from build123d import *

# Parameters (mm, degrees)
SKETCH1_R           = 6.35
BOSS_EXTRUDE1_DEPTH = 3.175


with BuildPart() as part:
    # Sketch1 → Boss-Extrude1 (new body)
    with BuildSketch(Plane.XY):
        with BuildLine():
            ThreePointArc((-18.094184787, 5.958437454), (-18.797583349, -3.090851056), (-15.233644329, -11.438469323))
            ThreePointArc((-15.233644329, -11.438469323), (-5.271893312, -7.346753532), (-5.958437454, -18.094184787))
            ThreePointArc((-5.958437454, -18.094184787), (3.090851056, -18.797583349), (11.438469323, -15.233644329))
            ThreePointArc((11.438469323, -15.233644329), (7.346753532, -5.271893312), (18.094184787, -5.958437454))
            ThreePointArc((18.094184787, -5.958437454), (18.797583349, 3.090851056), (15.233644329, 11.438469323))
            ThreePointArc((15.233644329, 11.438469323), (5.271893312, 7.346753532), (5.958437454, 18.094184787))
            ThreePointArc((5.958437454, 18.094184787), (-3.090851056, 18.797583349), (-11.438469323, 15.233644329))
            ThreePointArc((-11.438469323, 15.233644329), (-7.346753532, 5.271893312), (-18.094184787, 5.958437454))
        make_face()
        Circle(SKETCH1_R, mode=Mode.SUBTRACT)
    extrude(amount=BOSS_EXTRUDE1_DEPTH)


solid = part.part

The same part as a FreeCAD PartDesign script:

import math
import FreeCAD as App
import Part
import Sketcher
from FreeCAD import Vector
Q = App.Units.Quantity

doc = App.newDocument("Part")
body = doc.addObject("PartDesign::Body", "Body")

# Sketch on XY plane
sketch1 = body.newObject("Sketcher::SketchObject", "Sketch")
sketch1.AttachmentSupport = (doc.getObject("XY_Plane"), [""])
sketch1.MapMode = "FlatFace"
sketch1.addGeometry([
    Part.ArcOfCircle(Part.Circle(Vector(0, 0, 0), Vector(0, 0, 1), 19), math.radians(162), math.radians(217)),  # 0
    Part.ArcOfCircle(Part.Circle(Vector(-9, -13, 0), Vector(0, 0, 1), 6), math.radians(-62), math.radians(170)),  # 1
    Part.ArcOfCircle(Part.Circle(Vector(0, 0, 0), Vector(0, 0, 1), 19), math.radians(-108), math.radians(-53)),  # 2
    Part.ArcOfCircle(Part.Circle(Vector(13, -9, 0), Vector(0, 0, 1), 6), math.radians(28), math.radians(260)),  # 3
    Part.ArcOfCircle(Part.Circle(Vector(0, 0, 0), Vector(0, 0, 1), 19), math.radians(-18), math.radians(37)),  # 4
    Part.ArcOfCircle(Part.Circle(Vector(9, 13, 0), Vector(0, 0, 1), 6), math.radians(118), math.radians(350)),  # 5
    Part.ArcOfCircle(Part.Circle(Vector(0, 0, 0), Vector(0, 0, 1), 19), math.radians(72), math.radians(127)),  # 6
    Part.ArcOfCircle(Part.Circle(Vector(-13, 9, 0), Vector(0, 0, 1), 6), math.radians(-152), math.radians(80)),  # 7
    Part.Circle(Vector(0, 0, 0), Vector(0, 0, 1), 6),  # 8
], False)
sketch1.addConstraint([
    Sketcher.Constraint("Coincident", 0, 2, 1, 2),
    Sketcher.Constraint("Coincident", 1, 1, 2, 1),
    Sketcher.Constraint("Coincident", 2, 2, 3, 2),
    Sketcher.Constraint("Coincident", 3, 1, 4, 1),
    Sketcher.Constraint("Coincident", 4, 2, 5, 2),
    Sketcher.Constraint("Coincident", 5, 1, 6, 1),
    Sketcher.Constraint("Coincident", 6, 2, 7, 2),
    Sketcher.Constraint("Coincident", 7, 1, 0, 1),
    Sketcher.Constraint("Coincident", 0, 3, -1, 1),
    Sketcher.Constraint("Coincident", 2, 3, -1, 1),
    Sketcher.Constraint("Coincident", 4, 3, -1, 1),
    Sketcher.Constraint("Coincident", 6, 3, -1, 1),
    Sketcher.Constraint("Coincident", 8, 3, -1, 1),
    Sketcher.Constraint("Equal", 0, 2),
    Sketcher.Constraint("Equal", 1, 3),
    Sketcher.Constraint("Equal", 2, 4),
    Sketcher.Constraint("Equal", 3, 5),
    Sketcher.Constraint("Equal", 4, 6),
    Sketcher.Constraint("Equal", 5, 7),
    Sketcher.Constraint("Equal", 7, 8),
    Sketcher.Constraint("Symmetric", 1, 3, 5, 3, -1, 1),
    Sketcher.Constraint("Symmetric", 3, 3, 7, 3, -1, 1),
    Sketcher.Constraint("Diameter", 8, Q("0.5 in")),
    Sketcher.Constraint("Radius", 0, Q("0.75 in")),
    Sketcher.Constraint("DistanceY", 1, 3, 3, 3, 3.531901),
    Sketcher.Constraint("DistanceX", 5, 3, 3, 3, 3.531901),
    Sketcher.Constraint("DistanceY", 0, 2, -1, 1, 11.438469),
    Sketcher.Constraint("DistanceX", -1, 1, 2, 2, 11.438469),
])
pad1 = body.newObject("PartDesign::Pad", "Pad")
pad1.Profile = sketch1
pad1.Length = Q("0.125 in")

doc.recompute()
